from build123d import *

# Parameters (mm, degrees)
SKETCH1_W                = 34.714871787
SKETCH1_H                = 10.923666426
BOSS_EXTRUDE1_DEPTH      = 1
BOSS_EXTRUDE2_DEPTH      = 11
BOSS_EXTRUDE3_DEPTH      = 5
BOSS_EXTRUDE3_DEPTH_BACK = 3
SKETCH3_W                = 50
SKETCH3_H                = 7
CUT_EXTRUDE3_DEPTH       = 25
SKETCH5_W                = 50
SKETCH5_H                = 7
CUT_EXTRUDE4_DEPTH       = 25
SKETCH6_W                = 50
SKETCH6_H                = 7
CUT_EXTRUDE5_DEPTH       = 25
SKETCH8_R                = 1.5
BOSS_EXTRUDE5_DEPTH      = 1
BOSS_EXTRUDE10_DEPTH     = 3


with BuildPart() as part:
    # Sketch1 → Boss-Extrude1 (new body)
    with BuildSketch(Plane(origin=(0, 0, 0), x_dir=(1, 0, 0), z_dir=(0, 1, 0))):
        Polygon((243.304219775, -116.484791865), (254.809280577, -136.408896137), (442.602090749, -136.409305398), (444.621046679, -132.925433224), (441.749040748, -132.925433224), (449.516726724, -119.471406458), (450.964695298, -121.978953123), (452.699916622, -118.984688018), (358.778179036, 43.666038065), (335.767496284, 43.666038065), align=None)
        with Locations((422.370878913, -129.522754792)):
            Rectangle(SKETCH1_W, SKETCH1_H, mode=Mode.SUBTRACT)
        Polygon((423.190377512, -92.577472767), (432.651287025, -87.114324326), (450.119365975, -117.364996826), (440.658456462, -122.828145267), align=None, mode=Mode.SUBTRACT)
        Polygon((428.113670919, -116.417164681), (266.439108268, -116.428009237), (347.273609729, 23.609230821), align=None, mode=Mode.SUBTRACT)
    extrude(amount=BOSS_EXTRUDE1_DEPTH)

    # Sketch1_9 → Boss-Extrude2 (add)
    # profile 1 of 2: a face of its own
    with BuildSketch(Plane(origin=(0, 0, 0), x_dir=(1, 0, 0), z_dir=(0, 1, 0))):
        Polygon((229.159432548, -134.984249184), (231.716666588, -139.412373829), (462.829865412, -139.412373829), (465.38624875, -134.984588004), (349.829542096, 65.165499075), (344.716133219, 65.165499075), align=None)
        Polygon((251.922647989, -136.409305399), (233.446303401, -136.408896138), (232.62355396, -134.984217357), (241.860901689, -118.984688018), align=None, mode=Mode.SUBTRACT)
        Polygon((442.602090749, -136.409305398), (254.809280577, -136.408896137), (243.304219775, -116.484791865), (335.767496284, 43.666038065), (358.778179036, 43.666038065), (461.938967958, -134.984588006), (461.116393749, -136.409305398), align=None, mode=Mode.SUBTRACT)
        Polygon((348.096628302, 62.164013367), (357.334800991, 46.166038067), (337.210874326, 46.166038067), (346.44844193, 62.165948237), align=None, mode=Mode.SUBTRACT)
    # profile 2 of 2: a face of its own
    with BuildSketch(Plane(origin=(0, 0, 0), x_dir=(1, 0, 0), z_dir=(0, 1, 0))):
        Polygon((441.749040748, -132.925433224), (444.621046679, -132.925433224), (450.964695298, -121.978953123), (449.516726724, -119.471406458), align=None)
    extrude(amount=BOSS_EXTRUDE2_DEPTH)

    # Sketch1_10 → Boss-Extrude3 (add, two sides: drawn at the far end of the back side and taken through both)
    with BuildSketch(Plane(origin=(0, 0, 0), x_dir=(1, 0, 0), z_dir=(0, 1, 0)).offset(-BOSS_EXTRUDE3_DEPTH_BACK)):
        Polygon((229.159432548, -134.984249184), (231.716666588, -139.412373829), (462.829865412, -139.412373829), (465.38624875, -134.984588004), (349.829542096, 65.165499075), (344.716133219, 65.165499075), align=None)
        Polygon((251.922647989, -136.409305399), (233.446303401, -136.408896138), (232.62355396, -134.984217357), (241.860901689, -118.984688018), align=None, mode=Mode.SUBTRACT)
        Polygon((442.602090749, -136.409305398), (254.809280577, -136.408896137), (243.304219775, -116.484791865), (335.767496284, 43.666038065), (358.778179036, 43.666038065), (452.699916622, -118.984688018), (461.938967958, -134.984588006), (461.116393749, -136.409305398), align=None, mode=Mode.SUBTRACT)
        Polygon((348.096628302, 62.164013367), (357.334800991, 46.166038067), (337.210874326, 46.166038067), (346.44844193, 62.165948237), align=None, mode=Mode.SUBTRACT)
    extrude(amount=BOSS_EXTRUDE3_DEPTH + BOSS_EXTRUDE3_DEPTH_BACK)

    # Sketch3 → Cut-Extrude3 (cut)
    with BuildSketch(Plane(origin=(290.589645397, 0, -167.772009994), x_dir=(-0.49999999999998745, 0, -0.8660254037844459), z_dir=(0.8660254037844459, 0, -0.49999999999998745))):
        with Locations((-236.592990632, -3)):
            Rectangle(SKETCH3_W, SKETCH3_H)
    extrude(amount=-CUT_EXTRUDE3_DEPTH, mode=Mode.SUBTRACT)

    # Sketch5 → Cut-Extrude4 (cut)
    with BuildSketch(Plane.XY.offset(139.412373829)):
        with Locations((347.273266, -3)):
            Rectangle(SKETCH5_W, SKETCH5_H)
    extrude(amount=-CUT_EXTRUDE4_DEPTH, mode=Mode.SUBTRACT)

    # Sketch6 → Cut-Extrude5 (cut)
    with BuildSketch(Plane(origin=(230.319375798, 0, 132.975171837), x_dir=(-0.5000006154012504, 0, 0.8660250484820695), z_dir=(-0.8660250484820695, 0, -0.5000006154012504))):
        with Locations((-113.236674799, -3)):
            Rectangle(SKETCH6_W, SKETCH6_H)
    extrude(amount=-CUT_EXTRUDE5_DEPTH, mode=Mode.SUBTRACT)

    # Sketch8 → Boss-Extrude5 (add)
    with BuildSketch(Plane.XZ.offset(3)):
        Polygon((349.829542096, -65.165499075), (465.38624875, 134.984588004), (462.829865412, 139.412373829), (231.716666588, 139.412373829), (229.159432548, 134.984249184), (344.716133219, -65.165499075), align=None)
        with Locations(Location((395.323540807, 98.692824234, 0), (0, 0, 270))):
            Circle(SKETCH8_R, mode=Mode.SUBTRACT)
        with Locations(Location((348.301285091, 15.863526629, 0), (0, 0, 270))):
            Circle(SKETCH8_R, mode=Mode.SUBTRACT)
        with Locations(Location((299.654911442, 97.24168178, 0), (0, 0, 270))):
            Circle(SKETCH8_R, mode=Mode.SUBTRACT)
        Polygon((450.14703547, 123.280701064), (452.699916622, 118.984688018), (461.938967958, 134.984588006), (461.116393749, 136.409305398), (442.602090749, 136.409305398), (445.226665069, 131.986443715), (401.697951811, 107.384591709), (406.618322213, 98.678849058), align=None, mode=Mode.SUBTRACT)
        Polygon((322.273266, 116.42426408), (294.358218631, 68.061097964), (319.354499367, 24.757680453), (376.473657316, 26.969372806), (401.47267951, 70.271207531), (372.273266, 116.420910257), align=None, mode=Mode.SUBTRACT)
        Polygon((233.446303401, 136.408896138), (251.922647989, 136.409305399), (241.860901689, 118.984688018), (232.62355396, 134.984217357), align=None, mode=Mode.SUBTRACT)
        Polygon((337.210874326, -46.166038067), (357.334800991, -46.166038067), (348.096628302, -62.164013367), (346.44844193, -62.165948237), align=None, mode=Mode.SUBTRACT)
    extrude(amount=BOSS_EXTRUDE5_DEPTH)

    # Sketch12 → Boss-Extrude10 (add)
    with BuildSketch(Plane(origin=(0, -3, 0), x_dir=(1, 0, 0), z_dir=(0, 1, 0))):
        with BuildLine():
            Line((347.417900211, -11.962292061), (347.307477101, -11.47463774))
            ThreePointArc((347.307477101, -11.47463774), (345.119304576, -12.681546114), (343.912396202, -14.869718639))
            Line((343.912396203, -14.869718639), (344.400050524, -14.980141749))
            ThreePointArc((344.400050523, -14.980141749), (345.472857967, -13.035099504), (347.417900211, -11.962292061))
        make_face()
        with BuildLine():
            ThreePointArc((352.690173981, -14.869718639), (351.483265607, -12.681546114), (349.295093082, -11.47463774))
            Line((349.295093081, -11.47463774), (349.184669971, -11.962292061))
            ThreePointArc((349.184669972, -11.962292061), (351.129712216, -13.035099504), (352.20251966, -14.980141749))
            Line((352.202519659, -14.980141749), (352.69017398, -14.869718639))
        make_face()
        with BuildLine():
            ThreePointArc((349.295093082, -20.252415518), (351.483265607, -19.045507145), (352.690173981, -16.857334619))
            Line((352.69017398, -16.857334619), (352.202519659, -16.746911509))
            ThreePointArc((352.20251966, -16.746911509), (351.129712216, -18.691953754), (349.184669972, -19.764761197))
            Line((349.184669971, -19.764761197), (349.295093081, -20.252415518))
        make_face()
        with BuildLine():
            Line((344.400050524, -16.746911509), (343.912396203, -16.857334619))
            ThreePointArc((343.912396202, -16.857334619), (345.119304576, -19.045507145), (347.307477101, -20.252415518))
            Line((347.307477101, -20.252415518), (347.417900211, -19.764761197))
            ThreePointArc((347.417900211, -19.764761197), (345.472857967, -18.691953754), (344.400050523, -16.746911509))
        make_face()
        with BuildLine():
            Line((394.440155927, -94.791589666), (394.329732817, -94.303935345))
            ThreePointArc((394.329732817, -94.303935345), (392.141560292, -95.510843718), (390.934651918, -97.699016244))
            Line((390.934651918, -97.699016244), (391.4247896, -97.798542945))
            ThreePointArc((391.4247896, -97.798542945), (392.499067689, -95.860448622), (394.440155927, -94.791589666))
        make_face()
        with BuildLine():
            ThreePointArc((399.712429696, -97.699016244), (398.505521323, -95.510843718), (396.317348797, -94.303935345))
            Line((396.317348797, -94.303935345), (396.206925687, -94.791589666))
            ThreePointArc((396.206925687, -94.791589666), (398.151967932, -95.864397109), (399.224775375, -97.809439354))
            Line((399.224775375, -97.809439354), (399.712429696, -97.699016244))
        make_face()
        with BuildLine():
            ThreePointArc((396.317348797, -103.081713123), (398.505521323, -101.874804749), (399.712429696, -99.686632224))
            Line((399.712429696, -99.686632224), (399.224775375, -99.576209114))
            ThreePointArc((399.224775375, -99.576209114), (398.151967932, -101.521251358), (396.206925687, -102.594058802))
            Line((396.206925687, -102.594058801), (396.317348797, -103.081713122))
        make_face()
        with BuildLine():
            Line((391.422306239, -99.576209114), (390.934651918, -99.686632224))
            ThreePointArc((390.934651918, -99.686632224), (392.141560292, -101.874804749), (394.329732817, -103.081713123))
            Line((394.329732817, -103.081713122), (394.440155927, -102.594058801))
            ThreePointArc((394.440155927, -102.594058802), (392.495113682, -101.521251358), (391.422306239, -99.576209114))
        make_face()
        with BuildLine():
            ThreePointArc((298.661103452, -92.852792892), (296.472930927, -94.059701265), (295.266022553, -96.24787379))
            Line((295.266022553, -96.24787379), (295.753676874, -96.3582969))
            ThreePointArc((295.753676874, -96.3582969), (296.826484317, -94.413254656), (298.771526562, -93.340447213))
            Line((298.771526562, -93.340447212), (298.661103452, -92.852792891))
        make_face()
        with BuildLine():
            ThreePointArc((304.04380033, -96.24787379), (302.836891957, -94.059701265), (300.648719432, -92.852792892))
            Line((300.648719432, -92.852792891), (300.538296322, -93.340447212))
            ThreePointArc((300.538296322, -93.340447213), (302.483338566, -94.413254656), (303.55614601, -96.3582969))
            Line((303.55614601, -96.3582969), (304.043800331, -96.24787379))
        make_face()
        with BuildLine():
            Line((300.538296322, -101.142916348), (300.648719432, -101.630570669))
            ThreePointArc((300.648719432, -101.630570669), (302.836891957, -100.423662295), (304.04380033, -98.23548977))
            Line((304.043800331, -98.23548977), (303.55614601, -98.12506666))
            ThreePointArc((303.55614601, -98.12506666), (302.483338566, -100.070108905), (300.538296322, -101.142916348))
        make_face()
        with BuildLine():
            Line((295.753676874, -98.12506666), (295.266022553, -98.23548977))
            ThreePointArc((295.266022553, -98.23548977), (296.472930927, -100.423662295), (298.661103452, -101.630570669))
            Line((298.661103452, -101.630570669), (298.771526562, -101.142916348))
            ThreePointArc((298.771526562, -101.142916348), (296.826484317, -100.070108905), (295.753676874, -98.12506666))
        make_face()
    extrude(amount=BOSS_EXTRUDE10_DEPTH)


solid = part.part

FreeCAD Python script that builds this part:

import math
import FreeCAD as App
import Part
import Sketcher
Q = App.Units.Quantity


def add_polygon(sketch, points):
    """Adds a closed chain of lines whose ends are joined by coincident constraints."""
    first, n = sketch.GeometryCount, len(points)
    for a, b in zip(points, points[1:] + points[:1]):
        sketch.addGeometry(Part.LineSegment(App.Vector(*a, 0), App.Vector(*b, 0)), False)
    for i in range(n):
        sketch.addConstraint(Sketcher.Constraint("Coincident", first + i, 2, first + (i + 1) % n, 1))

doc = App.newDocument("Part")
body = doc.addObject("PartDesign::Body", "Body")

# Sketch on XZ plane
sketch1 = body.newObject("Sketcher::SketchObject", "Sketch")
sketch1.AttachmentSupport = (doc.getObject("XZ_Plane"), [""])
sketch1.MapMode = "FlatFace"
add_polygon(sketch1, [(243.30422, 116.484792), (254.809281, 136.408896), (442.602091, 136.409305), (444.621047, 132.925433), (441.749041, 132.925433), (449.516727, 119.471406), (450.964695, 121.978953), (452.699917, 118.984688), (358.778179, -43.666038), (335.767496, -43.666038)])  # lines 0-9
add_polygon(sketch1, [(439.728315, 134.984588), (405.013443, 134.984588), (405.013443, 124.060922), (439.728315, 124.060922)])  # lines 10-13
add_polygon(sketch1, [(440.658456, 122.828145), (423.190378, 92.577473), (432.651287, 87.114324), (450.119366, 117.364997)])  # lines 14-17
add_polygon(sketch1, [(347.27361, -23.609231), (428.113671, 116.417165), (266.439108, 116.428009)])  # lines 18-20
sketch1.addConstraint(Sketcher.Constraint("Horizontal", 3))
sketch1.addConstraint(Sketcher.Constraint("Horizontal", 8))
sketch1.addConstraint(Sketcher.Constraint("Horizontal", 10))
sketch1.addConstraint(Sketcher.Constraint("Vertical", 11))
sketch1.addConstraint(Sketcher.Constraint("Horizontal", 12))
sketch1.addConstraint(Sketcher.Constraint("Vertical", 13))
sketch1.addConstraint(Sketcher.Constraint("DistanceX", 10, 2, 10, 1, Q("34.714872 mm")))
sketch1.addConstraint(Sketcher.Constraint("DistanceY", 4, 2, 1, 2, Q("16.937899 mm")))
sketch1.addConstraint(Sketcher.Constraint("DistanceX", 8, 2, 5, 2, Q("115.197199 mm")))
sketch1.addConstraint(Sketcher.Constraint("Distance", 0, Q("23.007311 mm")))
sketch1.addConstraint(Sketcher.Constraint("Distance", 1, Q("187.79281 mm")))
sketch1.addConstraint(Sketcher.Constraint("Distance", 4, Q("15.535372 mm")))
sketch1.addConstraint(Sketcher.Constraint("Distance", 7, Q("187.82053 mm")))
sketch1.addConstraint(Sketcher.Constraint("Distance", 14, Q("34.93189 mm")))
sketch1.addConstraint(Sketcher.Constraint("Distance", 16, Q("34.93189 mm")))
sketch1.addConstraint(Sketcher.Constraint("Distance", 20, Q("161.693059 mm")))
sketch1.addConstraint(Sketcher.Constraint("DistanceX", 3, 2, 3, 1, Q("2.872006 mm")))
sketch1.addConstraint(Sketcher.Constraint("DistanceX", 8, 2, 8, 1, Q("23.010683 mm")))
sketch1.addConstraint(Sketcher.Constraint("DistanceY", 11, 2, 11, 1, Q("10.923666 mm")))
sketch1.addConstraint(Sketcher.Constraint("DistanceX", -1, 1, 0, 2, Q("254.809281 mm")))
sketch1.addConstraint(Sketcher.Constraint("DistanceX", -1, 1, 3, 2, Q("441.749041 mm")))
sketch1.addConstraint(Sketcher.Constraint("DistanceY", -1, 1, 6, 2, Q("118.984688 mm")))
sketch1.addConstraint(Sketcher.Constraint("DistanceX", -1, 1, 7, 2, Q("358.778179 mm")))
sketch1.addConstraint(Sketcher.Constraint("DistanceY", 7, 2, -1, 1, Q("43.666038 mm")))
sketch1.addConstraint(Sketcher.Constraint("DistanceX", -1, 1, 9, 2, Q("243.30422 mm")))
sketch1.addConstraint(Sketcher.Constraint("DistanceY", -1, 1, 9, 2, Q("116.484792 mm")))
sketch1.addConstraint(Sketcher.Constraint("DistanceY", -1, 1, 10, 2, Q("134.984588 mm")))
sketch1.addConstraint(Sketcher.Constraint("DistanceX", -1, 1, 18, 2, Q("428.113671 mm")))
sketch1.addConstraint(Sketcher.Constraint("DistanceX", -1, 1, 19, 2, Q("266.439108 mm")))
sketch1.addConstraint(Sketcher.Constraint("DistanceY", -1, 1, 19, 2, Q("116.428009 mm")))
sketch1.addConstraint(Sketcher.Constraint("DistanceX", -1, 1, 20, 2, Q("347.27361 mm")))
sketch1.addConstraint(Sketcher.Constraint("DistanceY", 0, 2, 1, 2, Q("0.000409 mm")))
sketch1.addConstraint(Sketcher.Constraint("DistanceX", 2, 2, 4, 2, Q("4.89568 mm")))
sketch1.addConstraint(Sketcher.Constraint("DistanceY", 5, 2, 2, 2, Q("10.94648 mm")))
sketch1.addConstraint(Sketcher.Constraint("DistanceX", 12, 2, 2, 2, Q("4.892732 mm")))
sketch1.addConstraint(Sketcher.Constraint("DistanceY", 14, 2, 12, 2, Q("31.483449 mm")))
sketch1.addConstraint(Sketcher.Constraint("DistanceX", 14, 2, 4, 2, Q("26.326349 mm")))
sketch1.addConstraint(Sketcher.Constraint("DistanceX", 14, 2, 15, 2, Q("9.46091 mm")))
sketch1.addConstraint(Sketcher.Constraint("DistanceY", 15, 2, 14, 2, Q("5.463148 mm")))
sketch1.addConstraint(Sketcher.Constraint("DistanceX", 4, 2, 16, 2, Q("0.602639 mm")))
sketch1.addConstraint(Sketcher.Constraint("DistanceX", 12, 2, 17, 2, Q("0.930142 mm")))
sketch1.addConstraint(Sketcher.Constraint("DistanceY", 18, 2, 17, 2, Q("6.410981 mm")))
pad1 = body.newObject("PartDesign::Pad", "Pad")
pad1.Profile = sketch1
pad1.Length = 1
pad1.Reversed = True

# Sketch on XZ plane
sketch2 = body.newObject("Sketcher::SketchObject", "Sketch001")
sketch2.AttachmentSupport = (doc.getObject("XZ_Plane"), [""])
sketch2.MapMode = "FlatFace"
add_polygon(sketch2, [(229.159433, 134.984249), (231.716667, 139.412374), (462.829865, 139.412374), (465.386249, 134.984588), (349.829542, -65.165499), (344.716133, -65.165499)])  # lines 0-5
add_polygon(sketch2, [(241.860902, 118.984688), (251.922648, 136.409305), (233.446303, 136.408896), (232.623554, 134.984217)])  # lines 6-9
add_polygon(sketch2, [(461.116394, 136.409305), (442.602091, 136.409305), (254.809281, 136.408896), (243.30422, 116.484792), (335.767496, -43.666038), (358.778179, -43.666038), (461.938968, 134.984588)])  # lines 10-16
add_polygon(sketch2, [(346.448442, -62.165948), (348.096628, -62.164013), (357.334801, -46.166038), (337.210874, -46.166038)])  # lines 17-20
add_polygon(sketch2, [(441.749041, 132.925433), (444.621047, 132.925433), (450.964695, 121.978953), (449.516727, 119.471406)])  # lines 21-24
sketch2.addConstraint(Sketcher.Constraint("Horizontal", 1))
sketch2.addConstraint(Sketcher.Constraint("Horizontal", 4))
sketch2.addConstraint(Sketcher.Constraint("Horizontal", 10))
sketch2.addConstraint(Sketcher.Constraint("Horizontal", 14))
sketch2.addConstraint(Sketcher.Constraint("Horizontal", 19))
sketch2.addConstraint(Sketcher.Constraint("Horizontal", 21))
sketch2.addConstraint(Sketcher.Constraint("DistanceY", 18, 2, 14, 2, Q("2.5 mm")))
sketch2.addConstraint(Sketcher.Constraint("DistanceX", 1, 1, 1, 2, Q("231.113199 mm")))
sketch2.addConstraint(Sketcher.Constraint("DistanceX", 4, 2, 4, 1, Q("5.113409 mm")))
sketch2.addConstraint(Sketcher.Constraint("DistanceY", 3, 2, -1, 1, Q("65.165499 mm")))
sketch2.addConstraint(Sketcher.Constraint("DistanceX", -1, 1, 9, 2, Q("241.860902 mm")))
sketch2.addConstraint(Sketcher.Constraint("DistanceX", -1, 1, 18, 2, Q("357.334801 mm")))
sketch2.addConstraint(Sketcher.Constraint("DistanceX", 5, 2, 4, 2, Q("115.556701 mm")))
sketch2.addConstraint(Sketcher.Constraint("DistanceX", 6, 2, 2, 2, Q("213.463601 mm")))
sketch2.addConstraint(Sketcher.Constraint("DistanceX", 7, 2, 9, 2, Q("8.414598 mm")))
sketch2.addConstraint(Sketcher.Constraint("DistanceX", 20, 2, 3, 2, Q("3.3811 mm")))
sketch2.addConstraint(Sketcher.Constraint("DistanceX", 22, 2, 16, 2, Q("10.151698 mm")))
sketch2.addConstraint(Sketcher.Constraint("DistanceY", 23, 2, 10, 2, Q("16.937899 mm")))
sketch2.addConstraint(Sketcher.Constraint("Distance", 11, Q("187.79281 mm")))
sketch2.addConstraint(Sketcher.Constraint("Distance", 12, Q("23.007311 mm")))
sketch2.addConstraint(Sketcher.Constraint("Distance", 16, Q("1.645129 mm")))
sketch2.addConstraint(Sketcher.Constraint("Distance", 18, Q("18.473739 mm")))
sketch2.addConstraint(Sketcher.Constraint("Distance", 22, Q("12.651771 mm")))
sketch2.addConstraint(Sketcher.Constraint("Distance", 24, Q("15.535372 mm")))
sketch2.addConstraint(Sketcher.Constraint("DistanceX", 10, 2, 10, 1, Q("18.514303 mm")))
sketch2.addConstraint(Sketcher.Constraint("DistanceX", 14, 1, 14, 2, Q("23.010683 mm")))
sketch2.addConstraint(Sketcher.Constraint("DistanceX", 19, 2, 19, 1, Q("20.123927 mm")))
sketch2.addConstraint(Sketcher.Constraint("DistanceX", 21, 1, 21, 2, Q("2.872006 mm")))
sketch2.addConstraint(Sketcher.Constraint("DistanceX", -1, 1, 2, 2, Q("465.386249 mm")))
sketch2.addConstraint(Sketcher.Constraint("DistanceY", -1, 1, 2, 2, Q("134.984588 mm")))
sketch2.addConstraint(Sketcher.Constraint("DistanceY", -1, 1, 5, 2, Q("134.984249 mm")))
sketch2.addConstraint(Sketcher.Constraint("DistanceY", -1, 1, 9, 2, Q("118.984688 mm")))
sketch2.addConstraint(Sketcher.Constraint("DistanceX", -1, 1, 10, 2, Q("442.602091 mm")))
sketch2.addConstraint(Sketcher.Constraint("DistanceX", -1, 1, 12, 2, Q("243.30422 mm")))
sketch2.addConstraint(Sketcher.Constraint("DistanceY", -1, 1, 12, 2, Q("116.484792 mm")))
sketch2.addConstraint(Sketcher.Constraint("DistanceY", 13, 2, -1, 1, Q("43.666038 mm")))
sketch2.addConstraint(Sketcher.Constraint("DistanceX", -1, 1, 14, 2, Q("358.778179 mm")))
sketch2.addConstraint(Sketcher.Constraint("DistanceY", -1, 1, 15, 2, Q("134.984588 mm")))
sketch2.addConstraint(Sketcher.Constraint("DistanceX", -1, 1, 17, 2, Q("348.096628 mm")))
sketch2.addConstraint(Sketcher.Constraint("DistanceX", -1, 1, 20, 2, Q("346.448442 mm")))
sketch2.addConstraint(Sketcher.Constraint("DistanceY", 20, 2, -1, 1, Q("62.165948 mm")))
sketch2.addConstraint(Sketcher.Constraint("DistanceX", -1, 1, 24, 2, Q("441.749041 mm")))
sketch2.addConstraint(Sketcher.Constraint("DistanceX", 0, 2, 6, 2, Q("20.205981 mm")))
sketch2.addConstraint(Sketcher.Constraint("DistanceY", 6, 2, 0, 2, Q("3.003068 mm")))
sketch2.addConstraint(Sketcher.Constraint("DistanceY", 7, 2, 6, 2, Q("0.000409 mm")))
sketch2.addConstraint(Sketcher.Constraint("DistanceX", 8, 2, 7, 2, Q("0.822749 mm")))
sketch2.addConstraint(Sketcher.Constraint("DistanceY", 8, 2, 7, 2, Q("1.424679 mm")))
sketch2.addConstraint(Sketcher.Constraint("DistanceY", 9, 2, 8, 2, Q("15.999529 mm")))
sketch2.addConstraint(Sketcher.Constraint("DistanceY", 10, 2, 1, 2, Q("3.003068 mm")))
sketch2.addConstraint(Sketcher.Constraint("DistanceY", 21, 2, 1, 2, Q("6.486941 mm")))
pad2 = body.newObject("PartDesign::Pad", "Pad001")
pad2.Profile = sketch2
pad2.Length = 11
pad2.Reversed = True

# Sketch on XZ plane
sketch3 = body.newObject("Sketcher::SketchObject", "Sketch002")
sketch3.AttachmentSupport = (doc.getObject("XZ_Plane"), [""])
sketch3.MapMode = "FlatFace"
add_polygon(sketch3, [(229.159433, 134.984249), (231.716667, 139.412374), (462.829865, 139.412374), (465.386249, 134.984588), (349.829542, -65.165499), (344.716133, -65.165499)])  # lines 0-5
add_polygon(sketch3, [(241.860902, 118.984688), (251.922648, 136.409305), (233.446303, 136.408896), (232.623554, 134.984217)])  # lines 6-9
add_polygon(sketch3, [(461.116394, 136.409305), (442.602091, 136.409305), (254.809281, 136.408896), (243.30422, 116.484792), (335.767496, -43.666038), (358.778179, -43.666038), (452.699917, 118.984688), (461.938968, 134.984588)])  # lines 10-17
add_polygon(sketch3, [(346.448442, -62.165948), (348.096628, -62.164013), (357.334801, -46.166038), (337.210874, -46.166038)])  # lines 18-21
sketch3.addConstraint(Sketcher.Constraint("Horizontal", 1))
sketch3.addConstraint(Sketcher.Constraint("Horizontal", 4))
sketch3.addConstraint(Sketcher.Constraint("Horizontal", 10))
sketch3.addConstraint(Sketcher.Constraint("Horizontal", 14))
sketch3.addConstraint(Sketcher.Constraint("Horizontal", 20))
sketch3.addConstraint(Sketcher.Constraint("DistanceY", 19, 2, 14, 2, Q("2.5 mm")))
sketch3.addConstraint(Sketcher.Constraint("DistanceX", 1, 1, 1, 2, Q("231.113199 mm")))
sketch3.addConstraint(Sketcher.Constraint("DistanceX", 4, 2, 4, 1, Q("5.113409 mm")))
sketch3.addConstraint(Sketcher.Constraint("DistanceY", 3, 2, -1, 1, Q("65.165499 mm")))
sketch3.addConstraint(Sketcher.Constraint("DistanceX", -1, 1, 9, 2, Q("241.860902 mm")))
sketch3.addConstraint(Sketcher.Constraint("DistanceX", -1, 1, 19, 2, Q("357.334801 mm")))
sketch3.addConstraint(Sketcher.Constraint("DistanceX", 5, 2, 4, 2, Q("115.556701 mm")))
sketch3.addConstraint(Sketcher.Constraint("DistanceX", 6, 2, 2, 2, Q("213.463601 mm")))
sketch3.addConstraint(Sketcher.Constraint("DistanceX", 7, 2, 9, 2, Q("8.414598 mm")))
sketch3.addConstraint(Sketcher.Constraint("DistanceY", 15, 2, 2, 2, Q("15.9999 mm")))
sketch3.addConstraint(Sketcher.Constraint("DistanceY", 15, 2, 16, 2, Q("15.9999 mm")))
sketch3.addConstraint(Sketcher.Constraint("DistanceX", 21, 2, 3, 2, Q("3.3811 mm")))
sketch3.addConstraint(Sketcher.Constraint("Distance", 11, Q("187.79281 mm")))
sketch3.addConstraint(Sketcher.Constraint("Distance", 12, Q("23.007311 mm")))
sketch3.addConstraint(Sketcher.Constraint("Distance", 15, Q("187.82053 mm")))
sketch3.addConstraint(Sketcher.Constraint("Distance", 17, Q("1.645129 mm")))
sketch3.addConstraint(Sketcher.Constraint("Distance", 19, Q("18.473739 mm")))
sketch3.addConstraint(Sketcher.Constraint("DistanceX", 10, 2, 10, 1, Q("18.514303 mm")))
sketch3.addConstraint(Sketcher.Constraint("DistanceX", 14, 1, 14, 2, Q("23.010683 mm")))
sketch3.addConstraint(Sketcher.Constraint("DistanceX", 20, 2, 20, 1, Q("20.123927 mm")))
sketch3.addConstraint(Sketcher.Constraint("DistanceX", -1, 1, 2, 2, Q("465.386249 mm")))
sketch3.addConstraint(Sketcher.Constraint("DistanceY", -1, 1, 2, 2, Q("134.984588 mm")))
sketch3.addConstraint(Sketcher.Constraint("DistanceY", -1, 1, 5, 2, Q("134.984249 mm")))
sketch3.addConstraint(Sketcher.Constraint("DistanceY", -1, 1, 9, 2, Q("118.984688 mm")))
sketch3.addConstraint(Sketcher.Constraint("DistanceX", -1, 1, 10, 2, Q("442.602091 mm")))
sketch3.addConstraint(Sketcher.Constraint("DistanceX", -1, 1, 12, 2, Q("243.30422 mm")))
sketch3.addConstraint(Sketcher.Constraint("DistanceY", -1, 1, 12, 2, Q("116.484792 mm")))
sketch3.addConstraint(Sketcher.Constraint("DistanceY", 13, 2, -1, 1, Q("43.666038 mm")))
sketch3.addConstraint(Sketcher.Constraint("DistanceX", -1, 1, 14, 2, Q("358.778179 mm")))
sketch3.addConstraint(Sketcher.Constraint("DistanceX", -1, 1, 18, 2, Q("348.096628 mm")))
sketch3.addConstraint(Sketcher.Constraint("DistanceX", -1, 1, 21, 2, Q("346.448442 mm")))
sketch3.addConstraint(Sketcher.Constraint("DistanceY", 21, 2, -1, 1, Q("62.165948 mm")))
sketch3.addConstraint(Sketcher.Constraint("DistanceX", 0, 2, 6, 2, Q("20.205981 mm")))
sketch3.addConstraint(Sketcher.Constraint("DistanceY", 6, 2, 0, 2, Q("3.003068 mm")))
sketch3.addConstraint(Sketcher.Constraint("DistanceY", 7, 2, 6, 2, Q("0.000409 mm")))
sketch3.addConstraint(Sketcher.Constraint("DistanceX", 8, 2, 7, 2, Q("0.822749 mm")))
sketch3.addConstraint(Sketcher.Constraint("DistanceY", 8, 2, 7, 2, Q("1.424679 mm")))
sketch3.addConstraint(Sketcher.Constraint("DistanceY", 9, 2, 8, 2, Q("15.999529 mm")))
sketch3.addConstraint(Sketcher.Constraint("DistanceY", 10, 2, 1, 2, Q("3.003068 mm")))
pad3 = body.newObject("PartDesign::Pad", "Pad002")
pad3.Profile = sketch3
pad3.Type = "TwoLengths"
pad3.Length = 5
pad3.Length2 = 3
pad3.Reversed = True

# Sketch on an angled plane
sketch4 = body.newObject("Sketcher::SketchObject", "Sketch003")
sketch4.Placement = App.Placement(App.Vector(290.589645, 0, -167.77201), App.Rotation(App.Vector(-0.5, 0, -0.866025404), App.Vector(0, 1, 0), App.Vector(0.866025404, 0, -0.5), "ZXY"))
add_polygon(sketch4, [(-262, 0), (-262, -7), (-212, -7), (-212, 0)])  # lines 0-3
sketch4.addConstraint(Sketcher.Constraint("Vertical", 0))
sketch4.addConstraint(Sketcher.Constraint("Horizontal", 1))
sketch4.addConstraint(Sketcher.Constraint("Vertical", 2))
sketch4.addConstraint(Sketcher.Constraint("Horizontal", 3))
sketch4.addConstraint(Sketcher.Constraint("DistanceX", 1, 1, 1, 2, Q("50 mm")))
sketch4.addConstraint(Sketcher.Constraint("DistanceY", 0, 2, 0, 1, Q("7 mm")))
sketch4.addConstraint(Sketcher.Constraint("DistanceY", 0, 2, -1, 1, Q("6.5 mm")))
sketch4.addConstraint(Sketcher.Constraint("DistanceX", 0, 2, -1, 1, Q("261.592991 mm")))
pocket1 = body.newObject("PartDesign::Pocket", "Pocket")
pocket1.Profile = sketch4
pocket1.Length = 25

# Sketch on XY plane
sketch5 = body.newObject("Sketcher::SketchObject", "Sketch004")
sketch5.AttachmentSupport = (doc.getObject("XY_Plane"), [""])
sketch5.MapMode = "FlatFace"
sketch5.AttachmentOffset = App.Placement(App.Vector(0, 0, 139.412374), App.Rotation())
add_polygon(sketch5, [(322, 0), (322, -6), (372, -6), (372, 0)])  # lines 0-3
sketch5.addConstraint(Sketcher.Constraint("Vertical", 0))
sketch5.addConstraint(Sketcher.Constraint("Horizontal", 1))
sketch5.addConstraint(Sketcher.Constraint("Vertical", 2))
sketch5.addConstraint(Sketcher.Constraint("Horizontal", 3))
sketch5.addConstraint(Sketcher.Constraint("DistanceX", 1, 1, 1, 2, Q("50 mm")))
sketch5.addConstraint(Sketcher.Constraint("DistanceY", 0, 2, 0, 1, Q("7 mm")))
sketch5.addConstraint(Sketcher.Constraint("DistanceY", 0, 2, -1, 1, Q("6.5 mm")))
sketch5.addConstraint(Sketcher.Constraint("DistanceX", -1, 1, 0, 2, Q("322.273266 mm")))
pocket2 = body.newObject("PartDesign::Pocket", "Pocket001")
pocket2.Profile = sketch5
pocket2.Length = 25

# Sketch on an angled plane
sketch6 = body.newObject("Sketcher::SketchObject", "Sketch005")
sketch6.Placement = App.Placement(App.Vector(230.319376, 0, 132.975172), App.Rotation(App.Vector(-0.500000615, 0, 0.866025048), App.Vector(0, 0.999999999, 0), App.Vector(-0.866025048, 0, -0.500000615), "ZXY"))
add_polygon(sketch6, [(-138, 0), (-138, -6), (-88, -6), (-88, 0)])  # lines 0-3
sketch6.addConstraint(Sketcher.Constraint("Vertical", 0))
sketch6.addConstraint(Sketcher.Constraint("Horizontal", 1))
sketch6.addConstraint(Sketcher.Constraint("Vertical", 2))
sketch6.addConstraint(Sketcher.Constraint("Horizontal", 3))
sketch6.addConstraint(Sketcher.Constraint("DistanceX", 1, 1, 1, 2, Q("50 mm")))
sketch6.addConstraint(Sketcher.Constraint("DistanceY", 0, 2, 0, 1, Q("7 mm")))
sketch6.addConstraint(Sketcher.Constraint("DistanceY", 0, 2, -1, 1, Q("6.5 mm")))
sketch6.addConstraint(Sketcher.Constraint("DistanceX", 0, 2, -1, 1, Q("138.236675 mm")))
pocket3 = body.newObject("PartDesign::Pocket", "Pocket002")
pocket3.Profile = sketch6
pocket3.Length = 25

# Sketch on XZ plane
sketch7 = body.newObject("Sketcher::SketchObject", "Sketch006")
sketch7.AttachmentSupport = (doc.getObject("XZ_Plane"), [""])
sketch7.MapMode = "FlatFace"
sketch7.AttachmentOffset = App.Placement(App.Vector(0, 0, 3), App.Rotation())
add_polygon(sketch7, [(349.829542, -65.165499), (465.386249, 134.984588), (462.829865, 139.412374), (231.716667, 139.412374), (229.159433, 134.984249), (344.716133, -65.165499)])  # lines 0-5
add_polygon(sketch7, [(346.448442, -62.165948), (337.210874, -46.166038), (357.334801, -46.166038), (348.096628, -62.164013)])  # lines 6-9
sketch7.addGeometry(Part.Circle(App.Vector(348.301285, 15.863527, 0), App.Vector(0, 0, 1), 1.5), False)  # 10
add_polygon(sketch7, [(232.623554, 134.984217), (233.446303, 136.408896), (251.922648, 136.409305), (241.860902, 118.984688)])  # lines 11-14
sketch7.addGeometry(Part.Circle(App.Vector(299.654911, 97.241682, 0), App.Vector(0, 0, 1), 1.5), False)  # 15
add_polygon(sketch7, [(294.358219, 68.061098), (322.273266, 116.424264), (372.273266, 116.42091), (401.47268, 70.271208), (376.473657, 26.969373), (319.354499, 24.75768)])  # lines 16-21
sketch7.addGeometry(Part.Circle(App.Vector(395.323541, 98.692824, 0), App.Vector(0, 0, 1), 1.5), False)  # 22
add_polygon(sketch7, [(452.699917, 118.984688), (450.147035, 123.280701), (406.618322, 98.678849), (401.697952, 107.384592), (445.226665, 131.986444), (442.602091, 136.409305), (461.116394, 136.409305), (461.938968, 134.984588)])  # lines 23-30
sketch7.addConstraint(Sketcher.Constraint("Horizontal", 2))
sketch7.addConstraint(Sketcher.Constraint("Horizontal", 5))
sketch7.addConstraint(Sketcher.Constraint("Horizontal", 7))
sketch7.addConstraint(Sketcher.Constraint("Horizontal", 28))
sketch7.addConstraint(Sketcher.Constraint("Diameter", 10, Q("3 mm")))
sketch7.addConstraint(Sketcher.Constraint("Diameter", 15, Q("3 mm")))
sketch7.addConstraint(Sketcher.Constraint("Diameter", 22, Q("3 mm")))
sketch7.addConstraint(Sketcher.Constraint("Distance", 17, Q("50 mm")))
sketch7.addConstraint(Sketcher.Constraint("Distance", 19, Q("50 mm")))
sketch7.addConstraint(Sketcher.Constraint("Distance", 21, Q("50 mm")))
sketch7.addConstraint(Sketcher.Constraint("Distance", 24, Q("50 mm")))
sketch7.addConstraint(Sketcher.Constraint("Distance", 25, Q("10 mm")))
sketch7.addConstraint(Sketcher.Constraint("Distance", 26, Q("50 mm")))
sketch7.addConstraint(Sketcher.Constraint("DistanceX", 2, 2, 2, 1, Q("231.113199 mm")))
sketch7.addConstraint(Sketcher.Constraint("DistanceX", 5, 2, 22, 3, Q("45.493999 mm")))
sketch7.addConstraint(Sketcher.Constraint("DistanceY", 20, 2, 15, 3, Q("72.484001 mm")))
sketch7.addConstraint(Sketcher.Constraint("DistanceX", 5, 1, 5, 2, Q("5.113409 mm")))
sketch7.addConstraint(Sketcher.Constraint("DistanceY", 4, 2, -1, 1, Q("65.165499 mm")))
sketch7.addConstraint(Sketcher.Constraint("DistanceX", -1, 1, 7, 2, Q("357.334801 mm")))
sketch7.addConstraint(Sketcher.Constraint("DistanceX", -1, 1, 13, 2, Q("241.860902 mm")))
sketch7.addConstraint(Sketcher.Constraint("DistanceX", -1, 1, 20, 2, Q("319.354499 mm")))
sketch7.addConstraint(Sketcher.Constraint("DistanceY", -1, 1, 23, 2, Q("123.280701 mm")))
sketch7.addConstraint(Sketcher.Constraint("DistanceX", 3, 2, 4, 2, Q("115.556701 mm")))
sketch7.addConstraint(Sketcher.Constraint("DistanceX", 9, 2, 5, 2, Q("3.3811 mm")))
sketch7.addConstraint(Sketcher.Constraint("DistanceX", 11, 2, 13, 2, Q("8.414598 mm")))
sketch7.addConstraint(Sketcher.Constraint("DistanceX", 17, 2, 1, 2, Q("90.556599 mm")))
sketch7.addConstraint(Sketcher.Constraint("DistanceX", 26, 2, 1, 2, Q("17.6032 mm")))
sketch7.addConstraint(Sketcher.Constraint("DistanceY", 30, 2, 29, 2, Q("15.9999 mm")))
sketch7.addConstraint(Sketcher.Constraint("Distance", 8, Q("18.473739 mm")))
sketch7.addConstraint(Sketcher.Constraint("Distance", 18, Q("54.611362 mm")))
sketch7.addConstraint(Sketcher.Constraint("Distance", 20, Q("57.161961 mm")))
sketch7.addConstraint(Sketcher.Constraint("Distance", 29, Q("1.645129 mm")))
sketch7.addConstraint(Sketcher.Constraint("DistanceX", 7, 1, 7, 2, Q("20.123927 mm")))
sketch7.addConstraint(Sketcher.Constraint("DistanceX", 28, 1, 28, 2, Q("18.514303 mm")))
sketch7.addConstraint(Sketcher.Constraint("DistanceX", -1, 1, 15, 3, Q("299.654911 mm")))
sketch7.addConstraint(Sketcher.Constraint("DistanceY", -1, 1, 15, 3, Q("97.241682 mm")))
sketch7.addConstraint(Sketcher.Constraint("DistanceX", -1, 1, 22, 3, Q("395.323541 mm")))
sketch7.addConstraint(Sketcher.Constraint("DistanceX", -1, 1, 0, 2, Q("465.386249 mm")))
sketch7.addConstraint(Sketcher.Constraint("DistanceY", -1, 1, 0, 2, Q("134.984588 mm")))
sketch7.addConstraint(Sketcher.Constraint("DistanceY", -1, 1, 3, 2, Q("134.984249 mm")))
sketch7.addConstraint(Sketcher.Constraint("DistanceY", 6, 2, -1, 1, Q("46.166038 mm")))
sketch7.addConstraint(Sketcher.Constraint("DistanceX", -1, 1, 8, 2, Q("348.096628 mm")))
sketch7.addConstraint(Sketcher.Constraint("DistanceY", 9, 2, -1, 1, Q("62.165948 mm")))
sketch7.addConstraint(Sketcher.Constraint("DistanceY", -1, 1, 13, 2, Q("118.984688 mm")))
sketch7.addConstraint(Sketcher.Constraint("DistanceY", -1, 1, 17, 2, Q("116.42091 mm")))
sketch7.addConstraint(Sketcher.Constraint("DistanceX", -1, 1, 18, 2, Q("401.47268 mm")))
sketch7.addConstraint(Sketcher.Constraint("DistanceX", -1, 1, 21, 2, Q("294.358219 mm")))
sketch7.addConstraint(Sketcher.Constraint("DistanceY", -1, 1, 24, 2, Q("98.678849 mm")))
sketch7.addConstraint(Sketcher.Constraint("DistanceX", -1, 1, 25, 2, Q("401.697952 mm")))
sketch7.addConstraint(Sketcher.Constraint("DistanceY", -1, 1, 25, 2, Q("107.384592 mm")))
sketch7.addConstraint(Sketcher.Constraint("DistanceX", -1, 1, 27, 2, Q("442.602091 mm")))
sketch7.addConstraint(Sketcher.Constraint("DistanceY", -1, 1, 29, 2, Q("134.984588 mm")))
sketch7.addConstraint(Sketcher.Constraint("DistanceY", 10, 3, 0, 2, Q("119.121061 mm")))
sketch7.addConstraint(Sketcher.Constraint("DistanceY", 22, 3, 1, 2, Q("40.71955 mm")))
sketch7.addConstraint(Sketcher.Constraint("DistanceX", 10, 3, 1, 2, Q("114.52858 mm")))
sketch7.addConstraint(Sketcher.Constraint("DistanceX", 4, 2, 10, 3, Q("3.585152 mm")))
sketch7.addConstraint(Sketcher.Constraint("DistanceY", 22, 3, 11, 2, Q("37.716072 mm")))
sketch7.addConstraint(Sketcher.Constraint("DistanceY", 10, 3, 11, 2, Q("120.54537 mm")))
sketch7.addConstraint(Sketcher.Constraint("DistanceY", 11, 2, 12, 2, Q("0.000409 mm")))
sketch7.addConstraint(Sketcher.Constraint("DistanceX", 2, 2, 12, 2, Q("20.205981 mm")))
sketch7.addConstraint(Sketcher.Constraint("DistanceX", 14, 2, 11, 2, Q("0.822749 mm")))
sketch7.addConstraint(Sketcher.Constraint("DistanceY", 14, 2, 11, 2, Q("1.424679 mm")))
sketch7.addConstraint(Sketcher.Constraint("DistanceY", 16, 2, 12, 2, Q("19.985041 mm")))
sketch7.addConstraint(Sketcher.Constraint("DistanceY", 26, 2, 27, 2, Q("4.422862 mm")))
sketch7.addConstraint(Sketcher.Constraint("DistanceX", 23, 2, 30, 2, Q("2.552881 mm")))
pad4 = body.newObject("PartDesign::Pad", "Pad003")
pad4.Profile = sketch7
pad4.Length = 1

# Sketch on XZ plane
sketch8 = body.newObject("Sketcher::SketchObject", "Sketch007")
sketch8.AttachmentSupport = (doc.getObject("XZ_Plane"), [""])
sketch8.MapMode = "FlatFace"
sketch8.AttachmentOffset = App.Placement(App.Vector(0, 0, 3), App.Rotation())
sketch8.addGeometry(Part.LineSegment(App.Vector(347.4179, 11.962292, 0), App.Vector(347.307477, 11.474638, 0)), False)
sketch8.addGeometry(Part.ArcOfCircle(Part.Circle(App.Vector(348.301285, 15.863527, 0), App.Vector(0, 0, 1), 4.5), math.radians(-167.24126), math.radians(-102.75874)), False)
sketch8.addGeometry(Part.LineSegment(App.Vector(343.912396, 14.869719, 0), App.Vector(344.400051, 14.980142, 0)), False)
sketch8.addGeometry(Part.ArcOfCircle(Part.Circle(App.Vector(348.301285, 15.863527, 0), App.Vector(0, 0, 1), 4), math.radians(-167.24126), math.radians(-102.75874)), False)
sketch8.addGeometry(Part.ArcOfCircle(Part.Circle(App.Vector(348.301285, 15.863527, 0), App.Vector(0, 0, 1), 4.5), math.radians(-77.24126), math.radians(-12.75874)), False)
sketch8.addGeometry(Part.LineSegment(App.Vector(349.295093, 11.474638, 0), App.Vector(349.18467, 11.962292, 0)), False)
sketch8.addGeometry(Part.ArcOfCircle(Part.Circle(App.Vector(348.301285, 15.863527, 0), App.Vector(0, 0, 1), 4), math.radians(-77.24126), math.radians(-12.75874)), False)
sketch8.addGeometry(Part.LineSegment(App.Vector(352.20252, 14.980142, 0), App.Vector(352.690174, 14.869719, 0)), False)
sketch8.addGeometry(Part.ArcOfCircle(Part.Circle(App.Vector(348.301285, 15.863527, 0), App.Vector(0, 0, 1), 4.5), math.radians(12.75874), math.radians(77.24126)), False)
sketch8.addGeometry(Part.LineSegment(App.Vector(352.690174, 16.857335, 0), App.Vector(352.20252, 16.746912, 0)), False)
sketch8.addGeometry(Part.ArcOfCircle(Part.Circle(App.Vector(348.301285, 15.863527, 0), App.Vector(0, 0, 1), 4), math.radians(12.75874), math.radians(77.24126)), False)
sketch8.addGeometry(Part.LineSegment(App.Vector(349.18467, 19.764761, 0), App.Vector(349.295093, 20.252416, 0)), False)
sketch8.addGeometry(Part.LineSegment(App.Vector(344.400051, 16.746912, 0), App.Vector(343.912396, 16.857335, 0)), False)
sketch8.addGeometry(Part.ArcOfCircle(Part.Circle(App.Vector(348.301285, 15.863527, 0), App.Vector(0, 0, 1), 4.5), math.radians(102.75874), math.radians(167.24126)), False)
sketch8.addGeometry(Part.LineSegment(App.Vector(347.307477, 20.252416, 0), App.Vector(347.4179, 19.764761, 0)), False)
sketch8.addGeometry(Part.ArcOfCircle(Part.Circle(App.Vector(348.301285, 15.863527, 0), App.Vector(0, 0, 1), 4), math.radians(102.75874), math.radians(167.24126)), False)
sketch8.addGeometry(Part.LineSegment(App.Vector(394.440156, 94.79159, 0), App.Vector(394.329733, 94.303935, 0)), False)
sketch8.addGeometry(Part.ArcOfCircle(Part.Circle(App.Vector(395.323541, 98.692824, 0), App.Vector(0, 0, 1), 4.5), math.radians(-167.24126), math.radians(-102.75874)), False)
sketch8.addGeometry(Part.LineSegment(App.Vector(390.934652, 97.699016, 0), App.Vector(391.42479, 97.798543, 0)), False)
sketch8.addGeometry(Part.ArcOfCircle(Part.Circle(App.Vector(395.323541, 98.692824, 0), App.Vector(0, 0, 1), 4), math.radians(-167.081178), math.radians(-102.75874)), False)
sketch8.addGeometry(Part.ArcOfCircle(Part.Circle(App.Vector(395.323541, 98.692824, 0), App.Vector(0, 0, 1), 4.5), math.radians(-77.24126), math.radians(-12.75874)), False)
sketch8.addGeometry(Part.LineSegment(App.Vector(396.317349, 94.303935, 0), App.Vector(396.206926, 94.79159, 0)), False)
sketch8.addGeometry(Part.ArcOfCircle(Part.Circle(App.Vector(395.323541, 98.692824, 0), App.Vector(0, 0, 1), 4), math.radians(-77.24126), math.radians(-12.75874)), False)
sketch8.addGeometry(Part.LineSegment(App.Vector(399.224775, 97.809439, 0), App.Vector(399.71243, 97.699016, 0)), False)
sketch8.addGeometry(Part.ArcOfCircle(Part.Circle(App.Vector(395.323541, 98.692824, 0), App.Vector(0, 0, 1), 4.5), math.radians(12.75874), math.radians(77.24126)), False)
sketch8.addGeometry(Part.LineSegment(App.Vector(399.71243, 99.686632, 0), App.Vector(399.224775, 99.576209, 0)), False)
sketch8.addGeometry(Part.ArcOfCircle(Part.Circle(App.Vector(395.323541, 98.692824, 0), App.Vector(0, 0, 1), 4), math.radians(12.75874), math.radians(77.24126)), False)
sketch8.addGeometry(Part.LineSegment(App.Vector(396.206926, 102.594059, 0), App.Vector(396.317349, 103.081713, 0)), False)
sketch8.addGeometry(Part.LineSegment(App.Vector(391.422306, 99.576209, 0), App.Vector(390.934652, 99.686632, 0)), False)
sketch8.addGeometry(Part.ArcOfCircle(Part.Circle(App.Vector(395.323541, 98.692824, 0), App.Vector(0, 0, 1), 4.5), math.radians(102.75874), math.radians(167.24126)), False)
sketch8.addGeometry(Part.LineSegment(App.Vector(394.329733, 103.081713, 0), App.Vector(394.440156, 102.594059, 0)), False)
sketch8.addGeometry(Part.ArcOfCircle(Part.Circle(App.Vector(395.323541, 98.692824, 0), App.Vector(0, 0, 1), 4), math.radians(102.75874), math.radians(167.24126)), False)
sketch8.addGeometry(Part.ArcOfCircle(Part.Circle(App.Vector(299.654911, 97.241682, 0), App.Vector(0, 0, 1), 4.5), math.radians(-167.24126), math.radians(-102.75874)), False)
sketch8.addGeometry(Part.LineSegment(App.Vector(295.266023, 96.247874, 0), App.Vector(295.753677, 96.358297, 0)), False)
sketch8.addGeometry(Part.ArcOfCircle(Part.Circle(App.Vector(299.654911, 97.241682, 0), App.Vector(0, 0, 1), 4), math.radians(-167.24126), math.radians(-102.75874)), False)
sketch8.addGeometry(Part.LineSegment(App.Vector(298.771527, 93.340447, 0), App.Vector(298.661103, 92.852793, 0)), False)
sketch8.addGeometry(Part.ArcOfCircle(Part.Circle(App.Vector(299.654911, 97.241682, 0), App.Vector(0, 0, 1), 4.5), math.radians(-77.24126), math.radians(-12.75874)), False)
sketch8.addGeometry(Part.LineSegment(App.Vector(300.648719, 92.852793, 0), App.Vector(300.538296, 93.340447, 0)), False)
sketch8.addGeometry(Part.ArcOfCircle(Part.Circle(App.Vector(299.654911, 97.241682, 0), App.Vector(0, 0, 1), 4), math.radians(-77.24126), math.radians(-12.75874)), False)
sketch8.addGeometry(Part.LineSegment(App.Vector(303.556146, 96.358297, 0), App.Vector(304.0438, 96.247874, 0)), False)
sketch8.addGeometry(Part.LineSegment(App.Vector(300.538296, 101.142916, 0), App.Vector(300.648719, 101.630571, 0)), False)
sketch8.addGeometry(Part.ArcOfCircle(Part.Circle(App.Vector(299.654911, 97.241682, 0), App.Vector(0, 0, 1), 4.5), math.radians(12.75874), math.radians(77.24126)), False)
sketch8.addGeometry(Part.LineSegment(App.Vector(304.0438, 98.23549, 0), App.Vector(303.556146, 98.125067, 0)), False)
sketch8.addGeometry(Part.ArcOfCircle(Part.Circle(App.Vector(299.654911, 97.241682, 0), App.Vector(0, 0, 1), 4), math.radians(12.75874), math.radians(77.24126)), False)
sketch8.addGeometry(Part.LineSegment(App.Vector(295.753677, 98.125067, 0), App.Vector(295.266023, 98.23549, 0)), False)
sketch8.addGeometry(Part.ArcOfCircle(Part.Circle(App.Vector(299.654911, 97.241682, 0), App.Vector(0, 0, 1), 4.5), math.radians(102.75874), math.radians(167.24126)), False)
sketch8.addGeometry(Part.LineSegment(App.Vector(298.661103, 101.630571, 0), App.Vector(298.771527, 101.142916, 0)), False)
sketch8.addGeometry(Part.ArcOfCircle(Part.Circle(App.Vector(299.654911, 97.241682, 0), App.Vector(0, 0, 1), 4), math.radians(102.75874), math.radians(167.24126)), False)
sketch8.addConstraint(Sketcher.Constraint("Coincident", 0, 2, 1, 2))
sketch8.addConstraint(Sketcher.Constraint("Coincident", 1, 1, 2, 1))
sketch8.addConstraint(Sketcher.Constraint("Coincident", 2, 2, 3, 1))
sketch8.addConstraint(Sketcher.Constraint("Coincident", 3, 2, 0, 1))
sketch8.addConstraint(Sketcher.Constraint("Coincident", 4, 1, 5, 1))
sketch8.addConstraint(Sketcher.Constraint("Coincident", 5, 2, 6, 1))
sketch8.addConstraint(Sketcher.Constraint("Coincident", 6, 2, 7, 1))
sketch8.addConstraint(Sketcher.Constraint("Coincident", 7, 2, 4, 2))
sketch8.addConstraint(Sketcher.Constraint("Coincident", 8, 1, 9, 1))
sketch8.addConstraint(Sketcher.Constraint("Coincident", 9, 2, 10, 1))
sketch8.addConstraint(Sketcher.Constraint("Coincident", 10, 2, 11, 1))
sketch8.addConstraint(Sketcher.Constraint("Coincident", 11, 2, 8, 2))
sketch8.addConstraint(Sketcher.Constraint("Coincident", 12, 2, 13, 2))
sketch8.addConstraint(Sketcher.Constraint("Coincident", 13, 1, 14, 1))
sketch8.addConstraint(Sketcher.Constraint("Coincident", 14, 2, 15, 1))
sketch8.addConstraint(Sketcher.Constraint("Coincident", 15, 2, 12, 1))
sketch8.addConstraint(Sketcher.Constraint("Coincident", 16, 2, 17, 2))
sketch8.addConstraint(Sketcher.Constraint("Coincident", 17, 1, 18, 1))
sketch8.addConstraint(Sketcher.Constraint("Coincident", 18, 2, 19, 1))
sketch8.addConstraint(Sketcher.Constraint("Coincident", 19, 2, 16, 1))
sketch8.addConstraint(Sketcher.Constraint("Coincident", 20, 1, 21, 1))
sketch8.addConstraint(Sketcher.Constraint("Coincident", 21, 2, 22, 1))
sketch8.addConstraint(Sketcher.Constraint("Coincident", 22, 2, 23, 1))
sketch8.addConstraint(Sketcher.Constraint("Coincident", 23, 2, 20, 2))
sketch8.addConstraint(Sketcher.Constraint("Coincident", 24, 1, 25, 1))
sketch8.addConstraint(Sketcher.Constraint("Coincident", 25, 2, 26, 1))
sketch8.addConstraint(Sketcher.Constraint("Coincident", 26, 2, 27, 1))
sketch8.addConstraint(Sketcher.Constraint("Coincident", 27, 2, 24, 2))
sketch8.addConstraint(Sketcher.Constraint("Coincident", 28, 2, 29, 2))
sketch8.addConstraint(Sketcher.Constraint("Coincident", 29, 1, 30, 1))
sketch8.addConstraint(Sketcher.Constraint("Coincident", 30, 2, 31, 1))
sketch8.addConstraint(Sketcher.Constraint("Coincident", 31, 2, 28, 1))
sketch8.addConstraint(Sketcher.Constraint("Coincident", 32, 1, 33, 1))
sketch8.addConstraint(Sketcher.Constraint("Coincident", 33, 2, 34, 1))
sketch8.addConstraint(Sketcher.Constraint("Coincident", 34, 2, 35, 1))
sketch8.addConstraint(Sketcher.Constraint("Coincident", 35, 2, 32, 2))
sketch8.addConstraint(Sketcher.Constraint("Coincident", 36, 1, 37, 1))
sketch8.addConstraint(Sketcher.Constraint("Coincident", 37, 2, 38, 1))
sketch8.addConstraint(Sketcher.Constraint("Coincident", 38, 2, 39, 1))
sketch8.addConstraint(Sketcher.Constraint("Coincident", 39, 2, 36, 2))
sketch8.addConstraint(Sketcher.Constraint("Coincident", 40, 2, 41, 2))
sketch8.addConstraint(Sketcher.Constraint("Coincident", 41, 1, 42, 1))
sketch8.addConstraint(Sketcher.Constraint("Coincident", 42, 2, 43, 1))
sketch8.addConstraint(Sketcher.Constraint("Coincident", 43, 2, 40, 1))
sketch8.addConstraint(Sketcher.Constraint("Coincident", 44, 2, 45, 2))
sketch8.addConstraint(Sketcher.Constraint("Coincident", 45, 1, 46, 1))
sketch8.addConstraint(Sketcher.Constraint("Coincident", 46, 2, 47, 1))
sketch8.addConstraint(Sketcher.Constraint("Coincident", 47, 2, 44, 1))
sketch8.addConstraint(Sketcher.Constraint("Coincident", 3, 3, 1, 3))
sketch8.addConstraint(Sketcher.Constraint("Coincident", 4, 3, 1, 3))
sketch8.addConstraint(Sketcher.Constraint("Coincident", 6, 3, 1, 3))
sketch8.addConstraint(Sketcher.Constraint("Coincident", 8, 3, 1, 3))
sketch8.addConstraint(Sketcher.Constraint("Coincident", 10, 3, 1, 3))
sketch8.addConstraint(Sketcher.Constraint("Coincident", 13, 3, 1, 3))
sketch8.addConstraint(Sketcher.Constraint("Coincident", 15, 3, 1, 3))
sketch8.addConstraint(Sketcher.Constraint("Coincident", 19, 3, 17, 3))
sketch8.addConstraint(Sketcher.Constraint("Coincident", 20, 3, 17, 3))
sketch8.addConstraint(Sketcher.Constraint("Coincident", 22, 3, 17, 3))
sketch8.addConstraint(Sketcher.Constraint("Coincident", 24, 3, 17, 3))
sketch8.addConstraint(Sketcher.Constraint("Coincident", 26, 3, 17, 3))
sketch8.addConstraint(Sketcher.Constraint("Coincident", 29, 3, 17, 3))
sketch8.addConstraint(Sketcher.Constraint("Coincident", 31, 3, 17, 3))
sketch8.addConstraint(Sketcher.Constraint("Coincident", 34, 3, 32, 3))
sketch8.addConstraint(Sketcher.Constraint("Coincident", 36, 3, 32, 3))
sketch8.addConstraint(Sketcher.Constraint("Coincident", 38, 3, 32, 3))
sketch8.addConstraint(Sketcher.Constraint("Coincident", 41, 3, 32, 3))
sketch8.addConstraint(Sketcher.Constraint("Coincident", 43, 3, 32, 3))
sketch8.addConstraint(Sketcher.Constraint("Coincident", 45, 3, 32, 3))
sketch8.addConstraint(Sketcher.Constraint("Coincident", 47, 3, 32, 3))
sketch8.addConstraint(Sketcher.Constraint("Equal", 1, 4))
sketch8.addConstraint(Sketcher.Constraint("Equal", 3, 6))
sketch8.addConstraint(Sketcher.Constraint("Equal", 4, 8))
sketch8.addConstraint(Sketcher.Constraint("Equal", 6, 10))
sketch8.addConstraint(Sketcher.Constraint("Equal", 8, 13))
sketch8.addConstraint(Sketcher.Constraint("Equal", 10, 15))
sketch8.addConstraint(Sketcher.Constraint("Equal", 13, 17))
sketch8.addConstraint(Sketcher.Constraint("Equal", 15, 19))
sketch8.addConstraint(Sketcher.Constraint("Equal", 17, 20))
sketch8.addConstraint(Sketcher.Constraint("Equal", 19, 22))
sketch8.addConstraint(Sketcher.Constraint("Equal", 20, 24))
sketch8.addConstraint(Sketcher.Constraint("Equal", 22, 26))
sketch8.addConstraint(Sketcher.Constraint("Equal", 24, 29))
sketch8.addConstraint(Sketcher.Constraint("Equal", 26, 31))
sketch8.addConstraint(Sketcher.Constraint("Equal", 29, 32))
sketch8.addConstraint(Sketcher.Constraint("Equal", 31, 34))
sketch8.addConstraint(Sketcher.Constraint("Equal", 32, 36))
sketch8.addConstraint(Sketcher.Constraint("Equal", 34, 38))
sketch8.addConstraint(Sketcher.Constraint("Equal", 36, 41))
sketch8.addConstraint(Sketcher.Constraint("Equal", 38, 43))
sketch8.addConstraint(Sketcher.Constraint("Equal", 41, 45))
sketch8.addConstraint(Sketcher.Constraint("Equal", 43, 47))
sketch8.addConstraint(Sketcher.Constraint("Perpendicular", 2, 5))
sketch8.addConstraint(Sketcher.Constraint("Perpendicular", 0, 7))
sketch8.addConstraint(Sketcher.Constraint("Perpendicular", 5, 9))
sketch8.addConstraint(Sketcher.Constraint("Perpendicular", 7, 11))
sketch8.addConstraint(Sketcher.Constraint("Perpendicular", 11, 12))
sketch8.addConstraint(Sketcher.Constraint("Perpendicular", 9, 14))
sketch8.addConstraint(Sketcher.Constraint("Perpendicular", 12, 16))
sketch8.addConstraint(Sketcher.Constraint("Parallel", 14, 21))
sketch8.addConstraint(Sketcher.Constraint("Perpendicular", 16, 23))
sketch8.addConstraint(Sketcher.Constraint("Perpendicular", 21, 25))
sketch8.addConstraint(Sketcher.Constraint("Perpendicular", 23, 27))
sketch8.addConstraint(Sketcher.Constraint("Perpendicular", 27, 28))
sketch8.addConstraint(Sketcher.Constraint("Perpendicular", 25, 30))
sketch8.addConstraint(Sketcher.Constraint("Perpendicular", 30, 33))
sketch8.addConstraint(Sketcher.Constraint("Perpendicular", 28, 35))
sketch8.addConstraint(Sketcher.Constraint("Perpendicular", 33, 37))
sketch8.addConstraint(Sketcher.Constraint("Perpendicular", 35, 39))
sketch8.addConstraint(Sketcher.Constraint("Perpendicular", 39, 40))
sketch8.addConstraint(Sketcher.Constraint("Perpendicular", 37, 42))
sketch8.addConstraint(Sketcher.Constraint("Perpendicular", 40, 44))
sketch8.addConstraint(Sketcher.Constraint("Perpendicular", 42, 46))
sketch8.addConstraint(Sketcher.Constraint("Horizontal", 0, 2, 4, 1))
sketch8.addConstraint(Sketcher.Constraint("Horizontal", 3, 2, 5, 2))
sketch8.addConstraint(Sketcher.Constraint("Horizontal", 2, 2, 6, 2))
sketch8.addConstraint(Sketcher.Constraint("Horizontal", 8, 1, 12, 2))
sketch8.addConstraint(Sketcher.Constraint("Horizontal", 11, 2, 13, 1))
sketch8.addConstraint(Sketcher.Constraint("Horizontal", 16, 2, 20, 1))
sketch8.addConstraint(Sketcher.Constraint("Horizontal", 17, 1, 23, 2))
sketch8.addConstraint(Sketcher.Constraint("Horizontal", 24, 1, 28, 2))
sketch8.addConstraint(Sketcher.Constraint("Horizontal", 27, 2, 29, 1))
sketch8.addConstraint(Sketcher.Constraint("Horizontal", 35, 2, 36, 1))
sketch8.addConstraint(Sketcher.Constraint("Horizontal", 33, 2, 38, 2))
sketch8.addConstraint(Sketcher.Constraint("Horizontal", 41, 1, 44, 2))
sketch8.addConstraint(Sketcher.Constraint("Horizontal", 40, 2, 45, 1))
sketch8.addConstraint(Sketcher.Constraint("Vertical", 7, 2, 8, 1))
sketch8.addConstraint(Sketcher.Constraint("Vertical", 5, 2, 10, 2))
sketch8.addConstraint(Sketcher.Constraint("Vertical", 23, 2, 24, 1))
sketch8.addConstraint(Sketcher.Constraint("Vertical", 21, 2, 26, 2))
sketch8.addConstraint(Sketcher.Constraint("Vertical", 36, 1, 40, 2))
sketch8.addConstraint(Sketcher.Constraint("Vertical", 39, 2, 41, 1))
sketch8.addConstraint(Sketcher.Constraint("Radius", 3, Q("4 mm")))
sketch8.addConstraint(Sketcher.Constraint("Radius", 1, Q("4.5 mm")))
sketch8.addConstraint(Sketcher.Constraint("DistanceX", -1, 1, 3, 2, Q("347.4179 mm")))
sketch8.addConstraint(Sketcher.Constraint("DistanceX", -1, 1, 39, 2, Q("304.0438 mm")))
sketch8.addConstraint(Sketcher.Constraint("Distance", 18, Q("0.50014 mm")))
sketch8.addConstraint(Sketcher.Constraint("DistanceX", -1, 1, 17, 3, Q("395.323541 mm")))
sketch8.addConstraint(Sketcher.Constraint("DistanceX", -1, 1, 32, 3, Q("299.654911 mm")))
sketch8.addConstraint(Sketcher.Constraint("DistanceY", -1, 1, 32, 3, Q("97.241682 mm")))
sketch8.addConstraint(Sketcher.Constraint("DistanceY", -1, 1, 1, 1, Q("14.869719 mm")))
sketch8.addConstraint(Sketcher.Constraint("DistanceX", -1, 1, 2, 2, Q("344.400051 mm")))
sketch8.addConstraint(Sketcher.Constraint("DistanceY", -1, 1, 2, 2, Q("14.980142 mm")))
sketch8.addConstraint(Sketcher.Constraint("DistanceX", -1, 1, 5, 2, Q("349.18467 mm")))
sketch8.addConstraint(Sketcher.Constraint("DistanceX", -1, 1, 17, 1, Q("390.934652 mm")))
sketch8.addConstraint(Sketcher.Constraint("DistanceY", -1, 1, 19, 2, Q("94.79159 mm")))
sketch8.addConstraint(Sketcher.Constraint("DistanceX", -1, 1, 20, 1, Q("396.317349 mm")))
sketch8.addConstraint(Sketcher.Constraint("DistanceX", -1, 1, 36, 1, Q("300.648719 mm")))
pad5 = body.newObject("PartDesign::Pad", "Pad004")
pad5.Profile = sketch8
pad5.Length = 3
pad5.Reversed = True

doc.recompute()
